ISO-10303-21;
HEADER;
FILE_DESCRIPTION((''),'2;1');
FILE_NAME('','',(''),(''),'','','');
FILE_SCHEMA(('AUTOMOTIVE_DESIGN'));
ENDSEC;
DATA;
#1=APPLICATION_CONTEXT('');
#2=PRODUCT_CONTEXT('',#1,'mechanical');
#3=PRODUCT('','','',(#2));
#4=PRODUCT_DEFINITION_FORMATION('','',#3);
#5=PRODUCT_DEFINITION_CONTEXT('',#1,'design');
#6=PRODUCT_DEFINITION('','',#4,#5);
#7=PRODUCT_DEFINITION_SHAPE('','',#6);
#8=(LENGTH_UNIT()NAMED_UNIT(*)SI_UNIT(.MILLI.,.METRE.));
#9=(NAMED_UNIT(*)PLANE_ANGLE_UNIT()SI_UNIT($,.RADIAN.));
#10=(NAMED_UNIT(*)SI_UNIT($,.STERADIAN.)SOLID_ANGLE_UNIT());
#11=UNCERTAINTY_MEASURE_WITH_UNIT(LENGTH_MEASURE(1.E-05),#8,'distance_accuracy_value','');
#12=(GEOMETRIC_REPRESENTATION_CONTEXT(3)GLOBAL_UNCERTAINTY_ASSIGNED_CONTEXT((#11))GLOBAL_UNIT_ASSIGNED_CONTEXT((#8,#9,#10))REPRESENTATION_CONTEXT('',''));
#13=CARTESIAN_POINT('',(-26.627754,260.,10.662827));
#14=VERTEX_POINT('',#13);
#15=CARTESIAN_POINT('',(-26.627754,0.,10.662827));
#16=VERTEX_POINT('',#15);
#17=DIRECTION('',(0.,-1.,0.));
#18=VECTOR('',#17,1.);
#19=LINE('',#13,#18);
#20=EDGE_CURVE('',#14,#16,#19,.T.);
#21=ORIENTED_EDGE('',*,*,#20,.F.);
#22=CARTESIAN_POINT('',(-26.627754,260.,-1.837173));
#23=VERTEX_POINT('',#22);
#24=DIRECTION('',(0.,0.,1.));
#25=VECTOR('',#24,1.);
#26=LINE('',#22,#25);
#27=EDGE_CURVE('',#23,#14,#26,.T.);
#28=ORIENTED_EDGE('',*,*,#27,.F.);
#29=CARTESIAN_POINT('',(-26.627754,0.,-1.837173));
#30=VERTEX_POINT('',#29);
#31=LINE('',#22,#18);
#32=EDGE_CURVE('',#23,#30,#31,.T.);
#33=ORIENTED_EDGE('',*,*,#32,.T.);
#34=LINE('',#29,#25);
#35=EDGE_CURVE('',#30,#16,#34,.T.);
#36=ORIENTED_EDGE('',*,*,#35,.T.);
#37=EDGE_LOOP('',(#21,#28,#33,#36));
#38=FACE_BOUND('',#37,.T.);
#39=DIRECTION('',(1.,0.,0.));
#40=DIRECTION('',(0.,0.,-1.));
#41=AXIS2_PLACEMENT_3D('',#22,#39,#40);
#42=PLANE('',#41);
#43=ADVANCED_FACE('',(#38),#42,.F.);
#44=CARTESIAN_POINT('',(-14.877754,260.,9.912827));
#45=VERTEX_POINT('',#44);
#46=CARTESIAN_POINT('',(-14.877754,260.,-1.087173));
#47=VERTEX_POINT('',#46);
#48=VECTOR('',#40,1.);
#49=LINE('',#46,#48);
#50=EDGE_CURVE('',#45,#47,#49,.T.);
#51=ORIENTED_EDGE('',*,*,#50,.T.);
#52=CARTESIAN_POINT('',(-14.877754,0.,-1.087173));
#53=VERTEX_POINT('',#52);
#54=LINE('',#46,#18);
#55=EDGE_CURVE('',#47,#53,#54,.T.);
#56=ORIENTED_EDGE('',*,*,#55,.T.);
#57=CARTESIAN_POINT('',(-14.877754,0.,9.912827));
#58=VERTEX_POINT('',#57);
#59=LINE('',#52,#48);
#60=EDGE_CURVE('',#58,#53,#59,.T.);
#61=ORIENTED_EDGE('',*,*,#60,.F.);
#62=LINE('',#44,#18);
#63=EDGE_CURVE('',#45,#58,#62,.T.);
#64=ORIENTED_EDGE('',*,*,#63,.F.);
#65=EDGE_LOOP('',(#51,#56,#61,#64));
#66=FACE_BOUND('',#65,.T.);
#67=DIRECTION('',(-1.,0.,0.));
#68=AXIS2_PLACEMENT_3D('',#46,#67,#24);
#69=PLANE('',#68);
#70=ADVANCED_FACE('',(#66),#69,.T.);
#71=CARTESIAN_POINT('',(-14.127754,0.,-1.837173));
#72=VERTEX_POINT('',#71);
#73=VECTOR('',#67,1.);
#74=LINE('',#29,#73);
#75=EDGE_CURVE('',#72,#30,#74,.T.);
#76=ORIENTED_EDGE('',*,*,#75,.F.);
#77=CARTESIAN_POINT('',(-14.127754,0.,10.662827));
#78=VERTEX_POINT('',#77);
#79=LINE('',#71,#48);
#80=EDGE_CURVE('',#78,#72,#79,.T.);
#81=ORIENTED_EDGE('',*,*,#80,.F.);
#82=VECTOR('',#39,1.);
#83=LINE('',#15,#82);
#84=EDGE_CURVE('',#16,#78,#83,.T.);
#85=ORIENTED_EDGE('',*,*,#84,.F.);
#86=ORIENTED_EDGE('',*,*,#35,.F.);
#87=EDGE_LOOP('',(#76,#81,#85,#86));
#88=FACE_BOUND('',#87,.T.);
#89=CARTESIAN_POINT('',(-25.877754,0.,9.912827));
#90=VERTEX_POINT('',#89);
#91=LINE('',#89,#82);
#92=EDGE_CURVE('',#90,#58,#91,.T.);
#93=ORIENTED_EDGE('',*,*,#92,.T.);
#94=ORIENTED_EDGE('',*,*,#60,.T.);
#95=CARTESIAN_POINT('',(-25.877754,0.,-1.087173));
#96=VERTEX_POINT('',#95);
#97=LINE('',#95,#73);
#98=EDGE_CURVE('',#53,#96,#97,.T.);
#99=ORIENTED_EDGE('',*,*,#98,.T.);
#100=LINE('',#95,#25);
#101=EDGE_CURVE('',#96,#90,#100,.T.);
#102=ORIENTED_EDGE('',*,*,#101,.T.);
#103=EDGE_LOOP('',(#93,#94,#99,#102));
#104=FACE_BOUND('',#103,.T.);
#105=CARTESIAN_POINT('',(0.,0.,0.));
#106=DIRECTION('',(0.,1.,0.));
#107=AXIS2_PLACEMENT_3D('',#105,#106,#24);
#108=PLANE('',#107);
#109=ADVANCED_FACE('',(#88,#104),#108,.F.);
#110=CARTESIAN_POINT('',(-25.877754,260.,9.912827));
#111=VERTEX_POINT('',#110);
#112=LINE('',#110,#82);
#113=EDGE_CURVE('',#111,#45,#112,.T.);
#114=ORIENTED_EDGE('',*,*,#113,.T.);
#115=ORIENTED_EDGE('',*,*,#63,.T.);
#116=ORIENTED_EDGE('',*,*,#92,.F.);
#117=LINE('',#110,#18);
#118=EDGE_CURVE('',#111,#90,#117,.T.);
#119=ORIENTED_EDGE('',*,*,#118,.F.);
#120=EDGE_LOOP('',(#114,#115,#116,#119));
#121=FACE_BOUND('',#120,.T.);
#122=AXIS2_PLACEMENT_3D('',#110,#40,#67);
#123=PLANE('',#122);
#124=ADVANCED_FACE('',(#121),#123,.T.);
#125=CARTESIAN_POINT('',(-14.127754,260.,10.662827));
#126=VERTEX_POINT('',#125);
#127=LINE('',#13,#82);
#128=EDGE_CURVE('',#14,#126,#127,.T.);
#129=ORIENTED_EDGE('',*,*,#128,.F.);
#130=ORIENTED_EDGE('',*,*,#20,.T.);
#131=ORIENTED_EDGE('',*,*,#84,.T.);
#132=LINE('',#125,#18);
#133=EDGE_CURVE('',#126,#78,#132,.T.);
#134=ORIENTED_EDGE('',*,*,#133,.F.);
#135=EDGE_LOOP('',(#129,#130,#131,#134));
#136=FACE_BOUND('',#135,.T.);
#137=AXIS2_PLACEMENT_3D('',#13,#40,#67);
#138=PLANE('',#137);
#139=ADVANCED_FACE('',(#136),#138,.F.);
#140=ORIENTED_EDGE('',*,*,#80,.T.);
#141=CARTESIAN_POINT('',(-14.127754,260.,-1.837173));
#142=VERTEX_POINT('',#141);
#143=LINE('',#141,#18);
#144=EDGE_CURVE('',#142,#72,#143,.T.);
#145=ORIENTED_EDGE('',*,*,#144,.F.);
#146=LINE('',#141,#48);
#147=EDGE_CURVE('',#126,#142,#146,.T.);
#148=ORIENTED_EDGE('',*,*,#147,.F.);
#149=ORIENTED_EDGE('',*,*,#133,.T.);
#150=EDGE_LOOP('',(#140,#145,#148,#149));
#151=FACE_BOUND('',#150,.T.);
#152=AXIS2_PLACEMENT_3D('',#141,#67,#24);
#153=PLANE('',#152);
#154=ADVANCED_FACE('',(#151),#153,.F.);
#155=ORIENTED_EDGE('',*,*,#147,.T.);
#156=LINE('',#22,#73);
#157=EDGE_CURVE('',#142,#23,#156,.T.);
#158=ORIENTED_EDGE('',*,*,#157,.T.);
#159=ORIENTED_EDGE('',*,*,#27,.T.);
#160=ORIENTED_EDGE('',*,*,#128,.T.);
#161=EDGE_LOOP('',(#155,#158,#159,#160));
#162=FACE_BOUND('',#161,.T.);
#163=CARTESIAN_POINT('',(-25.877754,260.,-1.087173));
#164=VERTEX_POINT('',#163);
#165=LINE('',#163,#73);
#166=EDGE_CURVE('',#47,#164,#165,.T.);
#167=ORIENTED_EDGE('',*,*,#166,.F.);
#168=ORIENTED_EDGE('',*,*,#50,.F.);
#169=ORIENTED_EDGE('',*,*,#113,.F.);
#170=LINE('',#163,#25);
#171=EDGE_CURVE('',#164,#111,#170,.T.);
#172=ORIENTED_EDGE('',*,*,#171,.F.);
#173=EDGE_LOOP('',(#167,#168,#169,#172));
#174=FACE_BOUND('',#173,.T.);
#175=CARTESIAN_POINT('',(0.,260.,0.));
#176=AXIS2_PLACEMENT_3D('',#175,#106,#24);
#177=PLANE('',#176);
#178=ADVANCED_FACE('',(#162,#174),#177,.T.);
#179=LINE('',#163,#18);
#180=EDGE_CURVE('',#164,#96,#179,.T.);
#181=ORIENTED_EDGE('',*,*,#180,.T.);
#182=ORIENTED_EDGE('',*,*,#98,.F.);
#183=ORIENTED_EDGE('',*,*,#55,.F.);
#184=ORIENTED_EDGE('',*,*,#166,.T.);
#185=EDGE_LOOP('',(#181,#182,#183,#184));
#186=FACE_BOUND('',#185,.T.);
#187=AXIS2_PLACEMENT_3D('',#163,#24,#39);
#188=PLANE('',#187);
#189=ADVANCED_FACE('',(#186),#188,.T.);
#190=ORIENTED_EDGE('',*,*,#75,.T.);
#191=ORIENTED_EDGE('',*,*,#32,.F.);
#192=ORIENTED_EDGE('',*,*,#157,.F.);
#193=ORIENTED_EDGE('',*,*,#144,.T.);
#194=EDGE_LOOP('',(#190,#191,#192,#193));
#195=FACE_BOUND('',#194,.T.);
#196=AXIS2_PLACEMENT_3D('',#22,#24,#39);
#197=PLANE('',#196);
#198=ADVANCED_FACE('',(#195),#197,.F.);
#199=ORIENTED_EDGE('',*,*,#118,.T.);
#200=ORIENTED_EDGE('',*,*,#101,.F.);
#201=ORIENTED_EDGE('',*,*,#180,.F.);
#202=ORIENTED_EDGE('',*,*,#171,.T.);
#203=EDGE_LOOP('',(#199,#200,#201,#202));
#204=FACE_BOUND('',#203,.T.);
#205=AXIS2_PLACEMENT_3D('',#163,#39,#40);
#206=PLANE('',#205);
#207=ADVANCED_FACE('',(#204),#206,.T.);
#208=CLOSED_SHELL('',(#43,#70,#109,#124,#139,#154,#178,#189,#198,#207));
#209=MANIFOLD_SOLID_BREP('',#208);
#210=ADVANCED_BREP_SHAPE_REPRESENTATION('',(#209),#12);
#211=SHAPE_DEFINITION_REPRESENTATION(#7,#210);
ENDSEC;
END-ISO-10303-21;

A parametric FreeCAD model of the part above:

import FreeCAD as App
import Part
import Sketcher


def add_polygon(sketch, points):
    """Adds a closed chain of lines whose ends are joined by coincident constraints."""
    first, n = sketch.GeometryCount, len(points)
    for a, b in zip(points, points[1:] + points[:1]):
        sketch.addGeometry(Part.LineSegment(App.Vector(*a, 0), App.Vector(*b, 0)), False)
    for i in range(n):
        sketch.addConstraint(Sketcher.Constraint("Coincident", first + i, 2, first + (i + 1) % n, 1))

doc = App.newDocument("Part")
body = doc.addObject("PartDesign::Body", "Body")

# Sketch on XZ plane
sketch1 = doc.addObject("Sketcher::SketchObject", "Sketch")
body.addObject(sketch1)
sketch1.AttachmentSupport = (doc.XZ_Plane, [""])
sketch1.MapMode = "FlatFace"
add_polygon(sketch1, [(-27, -2), (-27, 11), (-14, 11), (-14, -2)])  # lines 0-3
add_polygon(sketch1, [(-15, 10), (-26, 10), (-26, -1), (-15, -1)])  # lines 4-7
sketch1.addConstraint(Sketcher.Constraint("Vertical", 0))
sketch1.addConstraint(Sketcher.Constraint("Horizontal", 1))
sketch1.addConstraint(Sketcher.Constraint("Vertical", 2))
sketch1.addConstraint(Sketcher.Constraint("Horizontal", 3))
sketch1.addConstraint(Sketcher.Constraint("Horizontal", 4))
sketch1.addConstraint(Sketcher.Constraint("Vertical", 5))
sketch1.addConstraint(Sketcher.Constraint("Horizontal", 6))
sketch1.addConstraint(Sketcher.Constraint("Vertical", 7))
sketch1.addConstraint(Sketcher.Constraint("Equal", 3, 0))
sketch1.addConstraint(Sketcher.Constraint("Equal", 6, 5))
sketch1.addConstraint(Sketcher.Constraint("DistanceX", 4, 2, 4, 1, 11.0))
sketch1.addConstraint(Sketcher.Constraint("DistanceX", 1, 1, 1, 2, 12.5))
sketch1.addConstraint(Sketcher.Constraint("DistanceX", 0, 2, 4, 2, 0.75))
sketch1.addConstraint(Sketcher.Constraint("DistanceY", 4, 2, 0, 2, 0.75))
sketch1.addConstraint(Sketcher.Constraint("DistanceX", 0, 2, -1, 1, 26.627754))
sketch1.addConstraint(Sketcher.Constraint("DistanceY", -1, 1, 0, 2, 10.662827))
pad1 = doc.addObject("PartDesign::Pad", "Pad")
body.addObject(pad1)
pad1.Profile = sketch1
pad1.Length = 260
pad1.Reversed = True

doc.recompute()
